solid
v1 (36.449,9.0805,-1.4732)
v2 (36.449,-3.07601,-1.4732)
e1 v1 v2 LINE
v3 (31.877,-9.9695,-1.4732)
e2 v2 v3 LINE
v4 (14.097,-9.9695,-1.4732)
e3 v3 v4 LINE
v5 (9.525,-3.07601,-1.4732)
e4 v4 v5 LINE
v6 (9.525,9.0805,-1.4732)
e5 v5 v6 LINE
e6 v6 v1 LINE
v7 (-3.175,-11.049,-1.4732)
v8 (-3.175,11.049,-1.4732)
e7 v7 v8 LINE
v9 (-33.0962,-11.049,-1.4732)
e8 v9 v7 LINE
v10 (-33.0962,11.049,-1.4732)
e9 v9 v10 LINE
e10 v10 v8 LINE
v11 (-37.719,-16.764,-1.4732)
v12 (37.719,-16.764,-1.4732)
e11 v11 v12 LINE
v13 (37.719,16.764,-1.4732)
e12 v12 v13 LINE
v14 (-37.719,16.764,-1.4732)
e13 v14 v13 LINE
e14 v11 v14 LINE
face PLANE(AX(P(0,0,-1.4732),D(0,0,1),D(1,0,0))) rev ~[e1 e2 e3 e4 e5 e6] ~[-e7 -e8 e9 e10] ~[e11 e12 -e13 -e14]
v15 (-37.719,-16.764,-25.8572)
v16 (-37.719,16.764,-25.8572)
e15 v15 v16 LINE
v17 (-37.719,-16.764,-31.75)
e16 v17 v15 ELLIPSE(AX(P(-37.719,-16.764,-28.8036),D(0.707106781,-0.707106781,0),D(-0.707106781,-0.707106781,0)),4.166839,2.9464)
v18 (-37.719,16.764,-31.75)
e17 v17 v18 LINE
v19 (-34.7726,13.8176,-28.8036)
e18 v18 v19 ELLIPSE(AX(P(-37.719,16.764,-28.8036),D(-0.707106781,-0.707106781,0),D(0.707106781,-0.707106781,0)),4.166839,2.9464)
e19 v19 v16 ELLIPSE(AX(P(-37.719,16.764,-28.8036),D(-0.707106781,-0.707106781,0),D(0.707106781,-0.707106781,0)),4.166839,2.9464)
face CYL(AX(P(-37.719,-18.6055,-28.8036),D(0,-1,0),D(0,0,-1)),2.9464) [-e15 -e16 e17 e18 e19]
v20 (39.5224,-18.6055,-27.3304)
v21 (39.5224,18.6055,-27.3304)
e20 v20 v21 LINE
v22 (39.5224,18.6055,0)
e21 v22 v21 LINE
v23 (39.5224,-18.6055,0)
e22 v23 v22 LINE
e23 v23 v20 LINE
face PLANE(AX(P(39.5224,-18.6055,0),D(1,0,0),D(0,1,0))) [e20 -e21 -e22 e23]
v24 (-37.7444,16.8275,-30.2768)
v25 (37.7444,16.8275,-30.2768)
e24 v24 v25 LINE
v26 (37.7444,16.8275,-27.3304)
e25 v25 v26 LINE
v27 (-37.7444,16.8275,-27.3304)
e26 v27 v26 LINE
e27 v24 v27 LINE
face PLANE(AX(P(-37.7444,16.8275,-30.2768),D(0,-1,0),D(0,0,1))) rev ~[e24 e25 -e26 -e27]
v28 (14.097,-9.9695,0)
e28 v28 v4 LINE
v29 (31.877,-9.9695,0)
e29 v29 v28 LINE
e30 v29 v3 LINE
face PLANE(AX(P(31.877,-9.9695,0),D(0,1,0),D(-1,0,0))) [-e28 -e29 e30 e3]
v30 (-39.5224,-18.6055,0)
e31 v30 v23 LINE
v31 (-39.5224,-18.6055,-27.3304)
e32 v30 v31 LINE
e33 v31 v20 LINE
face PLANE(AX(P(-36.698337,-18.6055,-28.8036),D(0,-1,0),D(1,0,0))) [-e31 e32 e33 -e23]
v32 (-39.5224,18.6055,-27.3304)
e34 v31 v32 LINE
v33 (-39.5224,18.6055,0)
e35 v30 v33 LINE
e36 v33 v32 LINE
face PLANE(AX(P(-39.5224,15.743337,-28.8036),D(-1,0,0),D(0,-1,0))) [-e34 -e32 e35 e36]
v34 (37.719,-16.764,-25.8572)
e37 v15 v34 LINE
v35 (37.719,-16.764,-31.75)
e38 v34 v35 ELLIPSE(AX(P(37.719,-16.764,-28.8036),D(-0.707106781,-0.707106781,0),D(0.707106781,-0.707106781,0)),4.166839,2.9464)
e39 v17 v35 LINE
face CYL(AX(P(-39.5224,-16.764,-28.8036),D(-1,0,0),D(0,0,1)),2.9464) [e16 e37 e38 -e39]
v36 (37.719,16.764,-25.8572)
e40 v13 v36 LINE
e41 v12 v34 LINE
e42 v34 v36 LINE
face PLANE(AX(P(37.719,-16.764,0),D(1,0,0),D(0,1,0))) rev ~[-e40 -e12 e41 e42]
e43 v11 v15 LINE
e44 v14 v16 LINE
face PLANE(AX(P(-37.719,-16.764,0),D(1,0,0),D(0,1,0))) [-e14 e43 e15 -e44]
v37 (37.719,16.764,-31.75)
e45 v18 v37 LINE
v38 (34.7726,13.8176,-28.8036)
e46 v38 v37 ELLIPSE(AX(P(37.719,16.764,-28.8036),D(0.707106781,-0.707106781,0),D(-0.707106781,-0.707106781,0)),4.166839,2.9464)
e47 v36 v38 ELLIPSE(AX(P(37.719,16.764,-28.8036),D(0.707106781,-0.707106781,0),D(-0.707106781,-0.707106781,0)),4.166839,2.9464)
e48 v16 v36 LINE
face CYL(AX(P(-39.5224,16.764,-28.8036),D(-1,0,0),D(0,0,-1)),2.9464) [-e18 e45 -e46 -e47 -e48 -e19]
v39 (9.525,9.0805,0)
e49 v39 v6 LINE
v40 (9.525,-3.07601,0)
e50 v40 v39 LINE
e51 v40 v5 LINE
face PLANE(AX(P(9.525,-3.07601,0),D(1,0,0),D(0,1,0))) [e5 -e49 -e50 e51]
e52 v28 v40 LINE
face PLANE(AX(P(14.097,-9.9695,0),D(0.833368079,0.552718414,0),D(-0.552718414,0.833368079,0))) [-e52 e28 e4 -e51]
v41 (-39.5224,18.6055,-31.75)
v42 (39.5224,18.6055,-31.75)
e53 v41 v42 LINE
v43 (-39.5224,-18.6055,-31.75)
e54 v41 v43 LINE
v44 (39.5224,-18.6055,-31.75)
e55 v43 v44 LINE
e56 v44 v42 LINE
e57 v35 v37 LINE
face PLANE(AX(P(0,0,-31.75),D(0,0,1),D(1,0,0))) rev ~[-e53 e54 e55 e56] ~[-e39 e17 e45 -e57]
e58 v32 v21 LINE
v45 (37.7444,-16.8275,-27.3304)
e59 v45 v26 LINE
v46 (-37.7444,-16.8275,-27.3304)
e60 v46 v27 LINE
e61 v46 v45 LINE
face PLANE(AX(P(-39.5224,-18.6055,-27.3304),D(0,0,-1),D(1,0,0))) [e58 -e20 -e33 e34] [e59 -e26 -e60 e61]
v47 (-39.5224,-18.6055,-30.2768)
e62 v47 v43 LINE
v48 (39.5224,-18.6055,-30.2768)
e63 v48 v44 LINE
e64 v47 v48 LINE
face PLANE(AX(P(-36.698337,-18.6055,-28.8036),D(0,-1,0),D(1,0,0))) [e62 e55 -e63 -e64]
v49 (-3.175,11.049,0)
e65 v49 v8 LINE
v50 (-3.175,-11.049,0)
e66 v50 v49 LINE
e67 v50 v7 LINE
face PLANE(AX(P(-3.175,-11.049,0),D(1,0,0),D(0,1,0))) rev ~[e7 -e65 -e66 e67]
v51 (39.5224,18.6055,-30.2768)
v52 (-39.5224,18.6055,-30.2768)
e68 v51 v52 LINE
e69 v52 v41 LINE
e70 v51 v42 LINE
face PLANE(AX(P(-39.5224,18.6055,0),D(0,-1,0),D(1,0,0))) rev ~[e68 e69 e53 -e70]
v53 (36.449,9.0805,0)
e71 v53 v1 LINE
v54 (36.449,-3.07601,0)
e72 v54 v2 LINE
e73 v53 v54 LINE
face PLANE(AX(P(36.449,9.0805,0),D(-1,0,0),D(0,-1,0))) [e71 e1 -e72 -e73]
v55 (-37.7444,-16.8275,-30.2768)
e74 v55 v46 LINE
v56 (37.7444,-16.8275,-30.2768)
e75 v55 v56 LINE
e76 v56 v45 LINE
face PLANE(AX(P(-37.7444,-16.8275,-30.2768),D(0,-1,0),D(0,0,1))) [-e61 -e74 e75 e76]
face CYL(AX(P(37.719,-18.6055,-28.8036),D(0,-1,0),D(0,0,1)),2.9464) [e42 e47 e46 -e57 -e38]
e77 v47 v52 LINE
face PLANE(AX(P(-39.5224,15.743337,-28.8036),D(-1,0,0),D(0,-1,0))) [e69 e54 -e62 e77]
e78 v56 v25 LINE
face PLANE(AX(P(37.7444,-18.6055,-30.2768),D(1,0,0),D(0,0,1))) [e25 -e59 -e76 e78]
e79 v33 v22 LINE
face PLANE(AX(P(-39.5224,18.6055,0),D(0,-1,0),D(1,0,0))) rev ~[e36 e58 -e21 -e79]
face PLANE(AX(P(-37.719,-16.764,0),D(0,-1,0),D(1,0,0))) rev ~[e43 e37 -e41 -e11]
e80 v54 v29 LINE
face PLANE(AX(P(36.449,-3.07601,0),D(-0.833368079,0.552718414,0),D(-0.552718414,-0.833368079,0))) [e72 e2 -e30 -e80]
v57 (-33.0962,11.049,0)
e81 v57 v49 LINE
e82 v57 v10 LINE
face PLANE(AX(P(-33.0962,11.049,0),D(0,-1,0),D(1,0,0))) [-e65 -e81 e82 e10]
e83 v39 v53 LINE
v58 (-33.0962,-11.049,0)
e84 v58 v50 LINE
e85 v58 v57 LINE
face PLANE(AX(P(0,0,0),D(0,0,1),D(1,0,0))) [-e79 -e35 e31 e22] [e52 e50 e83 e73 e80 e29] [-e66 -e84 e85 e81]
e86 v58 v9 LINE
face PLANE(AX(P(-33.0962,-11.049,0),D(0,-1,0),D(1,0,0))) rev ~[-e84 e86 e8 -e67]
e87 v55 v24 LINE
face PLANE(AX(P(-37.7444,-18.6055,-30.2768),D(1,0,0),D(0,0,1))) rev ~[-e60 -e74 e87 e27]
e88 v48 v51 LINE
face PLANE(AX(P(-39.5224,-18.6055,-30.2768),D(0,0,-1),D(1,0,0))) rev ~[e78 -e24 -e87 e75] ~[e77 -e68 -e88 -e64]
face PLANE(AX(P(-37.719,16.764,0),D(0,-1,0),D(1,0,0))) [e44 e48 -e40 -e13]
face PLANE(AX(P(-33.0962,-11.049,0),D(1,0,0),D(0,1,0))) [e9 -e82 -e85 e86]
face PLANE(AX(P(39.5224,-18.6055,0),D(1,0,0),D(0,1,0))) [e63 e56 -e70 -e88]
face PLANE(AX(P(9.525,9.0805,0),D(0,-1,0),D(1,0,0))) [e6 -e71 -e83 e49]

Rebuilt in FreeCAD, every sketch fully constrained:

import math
import FreeCAD as App
import Part
import Sketcher
Q = App.Units.Quantity

doc = App.newDocument("Part")
params = doc.addObject("Spreadsheet::Sheet", "Params")
for row, (alias, value) in enumerate([
    ("sketch1_width", "2.97 in"),
    ("sketch1_height", "1.32 in"),
    ("sketch1_width2", "3.112 in"),
    ("sketch1_height2", "1.465 in"),
    ("pad1_length", "1.25 in"),
    ("sketch2_width", "0.7 in"),
    ("sketch2_width2", "2.97 in"),
    ("sketch2_width3", "1.06 in"),
    ("sketch2_height", "1.32 in"),
    ("sketch2_height2", "0.87 in"),
    ("pad2_length", "0.058 in"),
    ("sketch3_radius", "0.116 in"),
    ("sketch4_radius", "0.116 in"),
    ("sketch5_width", "0.07 in"),
    ("sketch5_height", "0.116 in"),
    ("sketch6_width", "0.07 in"),
    ("sketch6_height", "0.116 in"),
], start=1):
    params.set(f"A{row}", alias)
    params.set(f"B{row}", "=" + value)
    params.setAlias(f"B{row}", alias)

body = doc.addObject("PartDesign::Body", "Body")

sketch1 = body.newObject("Sketcher::SketchObject", "Sketch")
sketch1.AttachmentSupport = (doc.getObject("XY_Plane"), [""])
sketch1.MapMode = "FlatFace"
sketch1.addGeometry([
    Part.LineSegment(App.Vector(-39.5224, 18.6055, 0), App.Vector(-39.5224, -18.6055, 0)),
    Part.LineSegment(App.Vector(-39.5224, -18.6055, 0), App.Vector(39.5224, -18.6055, 0)),
    Part.LineSegment(App.Vector(39.5224, -18.6055, 0), App.Vector(39.5224, 18.6055, 0)),
    Part.LineSegment(App.Vector(39.5224, 18.6055, 0), App.Vector(-39.5224, 18.6055, 0)),
    Part.LineSegment(App.Vector(37.719, -16.764, 0), App.Vector(-37.719, -16.764, 0)),
    Part.LineSegment(App.Vector(-37.719, -16.764, 0), App.Vector(-37.719, 16.764, 0)),
    Part.LineSegment(App.Vector(-37.719, 16.764, 0), App.Vector(37.719, 16.764, 0)),
    Part.LineSegment(App.Vector(37.719, 16.764, 0), App.Vector(37.719, -16.764, 0)),
], False)
sketch1.addConstraint([
    Sketcher.Constraint("Coincident", 0, 2, 1, 1),
    Sketcher.Constraint("Coincident", 1, 2, 2, 1),
    Sketcher.Constraint("Coincident", 2, 2, 3, 1),
    Sketcher.Constraint("Coincident", 3, 2, 0, 1),
    Sketcher.Constraint("Coincident", 4, 2, 5, 1),
    Sketcher.Constraint("Coincident", 5, 2, 6, 1),
    Sketcher.Constraint("Coincident", 6, 2, 7, 1),
    Sketcher.Constraint("Coincident", 7, 2, 4, 1),
    Sketcher.Constraint("Vertical", 0),
    Sketcher.Constraint("Horizontal", 1),
    Sketcher.Constraint("Vertical", 2),
    Sketcher.Constraint("Horizontal", 3),
    Sketcher.Constraint("Horizontal", 4),
    Sketcher.Constraint("Vertical", 5),
    Sketcher.Constraint("Horizontal", 6),
    Sketcher.Constraint("Vertical", 7),
    Sketcher.Constraint("Symmetric", 0, 2, 2, 2, -1, 1),
    Sketcher.Constraint("Symmetric", 4, 2, 6, 2, -1, 1),
    Sketcher.Constraint("DistanceX", 4, 2, 4, 1, Q("2.97 in")),
    Sketcher.Constraint("DistanceY", 5, 1, 5, 2, Q("1.32 in")),
    Sketcher.Constraint("DistanceX", 1, 1, 1, 2, Q("3.112 in")),
    Sketcher.Constraint("DistanceY", 0, 2, 0, 1, Q("1.465 in")),
])
sketch1.setExpression("Constraints[18]", "Params.sketch1_width")
sketch1.setExpression("Constraints[19]", "Params.sketch1_height")
sketch1.setExpression("Constraints[20]", "Params.sketch1_width2")
sketch1.setExpression("Constraints[21]", "Params.sketch1_height2")
pad1 = body.newObject("PartDesign::Pad", "Pad")
pad1.Profile = sketch1
pad1.setExpression("Length", "Params.pad1_length")
pad1.Reversed = True

sketch2 = body.newObject("Sketcher::SketchObject", "Sketch001")
sketch2.AttachmentSupport = (doc.getObject("XY_Plane"), [""])
sketch2.MapMode = "FlatFace"
sketch2.addGeometry([
    Part.LineSegment(App.Vector(-37.719, 16.764, 0), App.Vector(-37.719, -16.764, 0)),
    Part.LineSegment(App.Vector(-37.719, -16.764, 0), App.Vector(37.719, -16.764, 0)),
    Part.LineSegment(App.Vector(37.719, -16.764, 0), App.Vector(37.719, 16.764, 0)),
    Part.LineSegment(App.Vector(37.719, 16.764, 0), App.Vector(-37.719, 16.764, 0)),
    Part.LineSegment(App.Vector(-3.175, -11.049, 0), App.Vector(-33.0962, -11.049, 0)),
    Part.LineSegment(App.Vector(-33.0962, -11.049, 0), App.Vector(-33.0962, 11.049, 0)),
    Part.LineSegment(App.Vector(-33.0962, 11.049, 0), App.Vector(-3.175, 11.049, 0)),
    Part.LineSegment(App.Vector(-3.175, 11.049, 0), App.Vector(-3.175, -11.049, 0)),
    Part.LineSegment(App.Vector(9.525, -3.07601, 0), App.Vector(9.525, 9.0805, 0)),
    Part.LineSegment(App.Vector(9.525, 9.0805, 0), App.Vector(36.449, 9.0805, 0)),
    Part.LineSegment(App.Vector(36.449, 9.0805, 0), App.Vector(36.449, -3.07601, 0)),
    Part.LineSegment(App.Vector(36.449, -3.07601, 0), App.Vector(31.877, -9.9695, 0)),
    Part.LineSegment(App.Vector(31.877, -9.9695, 0), App.Vector(14.097, -9.9695, 0)),
    Part.LineSegment(App.Vector(14.097, -9.9695, 0), App.Vector(9.525, -3.07601, 0)),
], False)
sketch2.addConstraint([
    Sketcher.Constraint("Coincident", 0, 2, 1, 1),
    Sketcher.Constraint("Coincident", 1, 2, 2, 1),
    Sketcher.Constraint("Coincident", 2, 2, 3, 1),
    Sketcher.Constraint("Coincident", 3, 2, 0, 1),
    Sketcher.Constraint("Coincident", 4, 2, 5, 1),
    Sketcher.Constraint("Coincident", 5, 2, 6, 1),
    Sketcher.Constraint("Coincident", 6, 2, 7, 1),
    Sketcher.Constraint("Coincident", 7, 2, 4, 1),
    Sketcher.Constraint("Coincident", 8, 2, 9, 1),
    Sketcher.Constraint("Coincident", 9, 2, 10, 1),
    Sketcher.Constraint("Coincident", 10, 2, 11, 1),
    Sketcher.Constraint("Coincident", 11, 2, 12, 1),
    Sketcher.Constraint("Coincident", 12, 2, 13, 1),
    Sketcher.Constraint("Coincident", 13, 2, 8, 1),
    Sketcher.Constraint("Vertical", 0),
    Sketcher.Constraint("Horizontal", 1),
    Sketcher.Constraint("Vertical", 2),
    Sketcher.Constraint("Horizontal", 3),
    Sketcher.Constraint("Horizontal", 4),
    Sketcher.Constraint("Vertical", 5),
    Sketcher.Constraint("Horizontal", 6),
    Sketcher.Constraint("Vertical", 7),
    Sketcher.Constraint("Vertical", 8),
    Sketcher.Constraint("Horizontal", 9),
    Sketcher.Constraint("Vertical", 10),
    Sketcher.Constraint("Horizontal", 12),
    Sketcher.Constraint("Symmetric", 0, 2, 2, 2, -1, 1),
    Sketcher.Constraint("Horizontal", 10, 2, 13, 2),
    Sketcher.Constraint("Equal", 11, 13),
    Sketcher.Constraint("DistanceX", 12, 2, 12, 1, Q("0.7 in")),
    Sketcher.Constraint("DistanceX", 1, 1, 1, 2, Q("2.97 in")),
    Sketcher.Constraint("DistanceX", 9, 1, 9, 2, Q("1.06 in")),
    Sketcher.Constraint("DistanceY", 0, 2, 0, 1, Q("1.32 in")),
    Sketcher.Constraint("DistanceY", 5, 1, 5, 2, Q("0.87 in")),
    Sketcher.Constraint("DistanceX", 6, 2, 8, 2, Q("0.5 in")),
    Sketcher.Constraint("DistanceX", 4, 2, 4, 1, Q("1.178 in")),
    Sketcher.Constraint("DistanceX", 3, 2, 6, 2, Q("1.36 in")),
    Sketcher.Constraint("DistanceY", 11, 2, 9, 2, Q("0.75 in")),
    Sketcher.Constraint("DistanceY", 4, 2, -1, 1, Q("0.435 in")),
    Sketcher.Constraint("DistanceY", -1, 1, 8, 2, Q("0.3575 in")),
    Sketcher.Constraint("DistanceY", 8, 1, 8, 2, Q("12.15651 mm")),
])
sketch2.setExpression("Constraints[29]", "Params.sketch2_width")
sketch2.setExpression("Constraints[30]", "Params.sketch2_width2")
sketch2.setExpression("Constraints[31]", "Params.sketch2_width3")
sketch2.setExpression("Constraints[32]", "Params.sketch2_height")
sketch2.setExpression("Constraints[33]", "Params.sketch2_height2")
pad2 = body.newObject("PartDesign::Pad", "Pad001")
pad2.Profile = sketch2
pad2.setExpression("Length", "Params.pad2_length")
pad2.Reversed = True

sketch3 = body.newObject("Sketcher::SketchObject", "Sketch002")
sketch3.AttachmentSupport = (doc.getObject("XZ_Plane"), [""])
sketch3.MapMode = "FlatFace"
sketch3.AttachmentOffset = App.Placement(App.Vector(0, 0, 0.7325 * 25.4), App.Rotation())
sketch3.addGeometry([
    Part.LineSegment(App.Vector(-37.719, -25.8572, 0), App.Vector(-37.719, -31.75, 0)),
    Part.ArcOfCircle(Part.Circle(App.Vector(-37.719, -28.8036, 0), App.Vector(0, 0, 1), 2.9464), math.radians(-90), math.radians(90)),
    Part.LineSegment(App.Vector(37.719, -31.75, 0), App.Vector(37.719, -25.8572, 0)),
    Part.ArcOfCircle(Part.Circle(App.Vector(37.719, -28.8036, 0), App.Vector(0, 0, 1), 2.9464), math.radians(90), math.radians(270)),
], False)
sketch3.addConstraint([
    Sketcher.Constraint("Coincident", 0, 1, 1, 2),
    Sketcher.Constraint("Coincident", 1, 1, 0, 2),
    Sketcher.Constraint("Coincident", 2, 1, 3, 2),
    Sketcher.Constraint("Coincident", 3, 1, 2, 2),
    Sketcher.Constraint("Vertical", 0),
    Sketcher.Constraint("Vertical", 2),
    Sketcher.Constraint("Equal", 1, 3),
    Sketcher.Constraint("Symmetric", 1, 3, 3, 3, -2),
    Sketcher.Constraint("Vertical", 1, 3, 0, 1),
    Sketcher.Constraint("Vertical", 3, 3, 2, 1),
    Sketcher.Constraint("Radius", 1, Q("0.116 in")),
    Sketcher.Constraint("DistanceY", 1, 1, -1, 1, Q("1.25 in")),
    Sketcher.Constraint("DistanceX", 1, 3, 3, 3, Q("2.97 in")),
])
sketch3.setExpression("Constraints[10]", "Params.sketch3_radius")
pad3 = body.newObject("PartDesign::Pad", "Pad002")
pad3.Profile = sketch3
pad3.Type = "UpToLast"
pad3.Reversed = True

sketch4 = body.newObject("Sketcher::SketchObject", "Sketch003")
sketch4.AttachmentSupport = (doc.getObject("YZ_Plane"), [""])
sketch4.MapMode = "FlatFace"
sketch4.AttachmentOffset = App.Placement(App.Vector(0, 0, -1.556 * 25.4), App.Rotation())
sketch4.addGeometry([
    Part.LineSegment(App.Vector(16.764, -25.8572, 0), App.Vector(16.764, -31.75, 0)),
    Part.ArcOfCircle(Part.Circle(App.Vector(16.764, -28.8036, 0), App.Vector(0, 0, 1), 2.9464), math.radians(90), math.radians(270)),
    Part.LineSegment(App.Vector(-16.764, -31.75, 0), App.Vector(-16.764, -25.8572, 0)),
    Part.ArcOfCircle(Part.Circle(App.Vector(-16.764, -28.8036, 0), App.Vector(0, 0, 1), 2.9464), math.radians(-90), math.radians(90)),
], False)
sketch4.addConstraint([
    Sketcher.Constraint("Coincident", 0, 1, 1, 1),
    Sketcher.Constraint("Coincident", 1, 2, 0, 2),
    Sketcher.Constraint("Coincident", 2, 1, 3, 1),
    Sketcher.Constraint("Coincident", 3, 2, 2, 2),
    Sketcher.Constraint("Vertical", 0),
    Sketcher.Constraint("Vertical", 2),
    Sketcher.Constraint("Equal", 1, 3),
    Sketcher.Constraint("Symmetric", 1, 3, 3, 3, -2),
    Sketcher.Constraint("Vertical", 1, 3, 0, 1),
    Sketcher.Constraint("Vertical", 3, 3, 2, 1),
    Sketcher.Constraint("Radius", 1, Q("0.116 in")),
    Sketcher.Constraint("DistanceX", -1, 1, 1, 3, Q("0.66 in")),
    Sketcher.Constraint("DistanceY", 1, 2, -1, 1, Q("1.25 in")),
])
sketch4.setExpression("Constraints[10]", "Params.sketch4_radius")
pad4 = body.newObject("PartDesign::Pad", "Pad003")
pad4.Profile = sketch4
pad4.Type = "UpToLast"

sketch5 = body.newObject("Sketcher::SketchObject", "Sketch004")
sketch5.AttachmentSupport = (doc.getObject("XZ_Plane"), [""])
sketch5.MapMode = "FlatFace"
sketch5.AttachmentOffset = App.Placement(App.Vector(0, 0, 0.7325 * 25.4), App.Rotation())
sketch5.addGeometry([
    Part.LineSegment(App.Vector(-39.5224, -27.3304, 0), App.Vector(-39.5224, -30.2768, 0)),
    Part.LineSegment(App.Vector(-39.5224, -30.2768, 0), App.Vector(-37.7444, -30.2768, 0)),
    Part.LineSegment(App.Vector(-37.7444, -30.2768, 0), App.Vector(-37.7444, -27.3304, 0)),
    Part.LineSegment(App.Vector(-37.7444, -27.3304, 0), App.Vector(-39.5224, -27.3304, 0)),
    Part.LineSegment(App.Vector(37.7444, -27.3304, 0), App.Vector(37.7444, -30.2768, 0)),
    Part.LineSegment(App.Vector(37.7444, -30.2768, 0), App.Vector(39.5224, -30.2768, 0)),
    Part.LineSegment(App.Vector(39.5224, -30.2768, 0), App.Vector(39.5224, -27.3304, 0)),
    Part.LineSegment(App.Vector(39.5224, -27.3304, 0), App.Vector(37.7444, -27.3304, 0)),
], False)
sketch5.addConstraint([
    Sketcher.Constraint("Coincident", 0, 2, 1, 1),
    Sketcher.Constraint("Coincident", 1, 2, 2, 1),
    Sketcher.Constraint("Coincident", 2, 2, 3, 1),
    Sketcher.Constraint("Coincident", 3, 2, 0, 1),
    Sketcher.Constraint("Coincident", 4, 2, 5, 1),
    Sketcher.Constraint("Coincident", 5, 2, 6, 1),
    Sketcher.Constraint("Coincident", 6, 2, 7, 1),
    Sketcher.Constraint("Coincident", 7, 2, 4, 1),
    Sketcher.Constraint("Vertical", 0),
    Sketcher.Constraint("Horizontal", 1),
    Sketcher.Constraint("Vertical", 2),
    Sketcher.Constraint("Horizontal", 3),
    Sketcher.Constraint("Vertical", 4),
    Sketcher.Constraint("Horizontal", 5),
    Sketcher.Constraint("Vertical", 6),
    Sketcher.Constraint("Horizontal", 7),
    Sketcher.Constraint("Symmetric", 1, 2, 4, 2, -2),
    Sketcher.Constraint("Symmetric", 3, 2, 6, 2, -2),
    Sketcher.Constraint("DistanceX", 1, 1, 1, 2, Q("0.07 in")),
    Sketcher.Constraint("DistanceY", 0, 2, 0, 1, Q("0.116 in")),
    Sketcher.Constraint("DistanceX", 0, 2, -1, 1, Q("1.556 in")),
    Sketcher.Constraint("DistanceY", 0, 2, -1, 1, Q("1.192 in")),
])
sketch5.setExpression("Constraints[18]", "Params.sketch5_width")
sketch5.setExpression("Constraints[19]", "Params.sketch5_height")
pocket1 = body.newObject("PartDesign::Pocket", "Pocket")
pocket1.Profile = sketch5
pocket1.Type = "ThroughAll"

sketch6 = body.newObject("Sketcher::SketchObject", "Sketch005")
sketch6.AttachmentSupport = (doc.getObject("YZ_Plane"), [""])
sketch6.MapMode = "FlatFace"
sketch6.AttachmentOffset = App.Placement(App.Vector(0, 0, -1.486 * 25.4), App.Rotation())
sketch6.addGeometry([
    Part.LineSegment(App.Vector(18.6055, -27.3304, 0), App.Vector(18.6055, -30.2768, 0)),
    Part.LineSegment(App.Vector(18.6055, -30.2768, 0), App.Vector(16.8275, -30.2768, 0)),
    Part.LineSegment(App.Vector(16.8275, -30.2768, 0), App.Vector(16.8275, -27.3304, 0)),
    Part.LineSegment(App.Vector(16.8275, -27.3304, 0), App.Vector(18.6055, -27.3304, 0)),
    Part.LineSegment(App.Vector(-16.8275, -27.3304, 0), App.Vector(-16.8275, -30.2768, 0)),
    Part.LineSegment(App.Vector(-16.8275, -30.2768, 0), App.Vector(-18.6055, -30.2768, 0)),
    Part.LineSegment(App.Vector(-18.6055, -30.2768, 0), App.Vector(-18.6055, -27.3304, 0)),
    Part.LineSegment(App.Vector(-18.6055, -27.3304, 0), App.Vector(-16.8275, -27.3304, 0)),
], False)
sketch6.addConstraint([
    Sketcher.Constraint("Coincident", 0, 2, 1, 1),
    Sketcher.Constraint("Coincident", 1, 2, 2, 1),
    Sketcher.Constraint("Coincident", 2, 2, 3, 1),
    Sketcher.Constraint("Coincident", 3, 2, 0, 1),
    Sketcher.Constraint("Coincident", 4, 2, 5, 1),
    Sketcher.Constraint("Coincident", 5, 2, 6, 1),
    Sketcher.Constraint("Coincident", 6, 2, 7, 1),
    Sketcher.Constraint("Coincident", 7, 2, 4, 1),
    Sketcher.Constraint("Vertical", 0),
    Sketcher.Constraint("Horizontal", 1),
    Sketcher.Constraint("Vertical", 2),
    Sketcher.Constraint("Horizontal", 3),
    Sketcher.Constraint("Vertical", 4),
    Sketcher.Constraint("Horizontal", 5),
    Sketcher.Constraint("Vertical", 6),
    Sketcher.Constraint("Horizontal", 7),
    Sketcher.Constraint("Symmetric", 1, 2, 4, 2, -2),
    Sketcher.Constraint("Symmetric", 3, 2, 6, 2, -2),
    Sketcher.Constraint("DistanceX", 1, 2, 1, 1, Q("0.07 in")),
    Sketcher.Constraint("DistanceY", 0, 2, 0, 1, Q("0.116 in")),
    Sketcher.Constraint("DistanceY", 0, 2, -1, 1, Q("1.192 in")),
    Sketcher.Constraint("DistanceX", 4, 2, 1, 2, Q("1.325 in")),
])
sketch6.setExpression("Constraints[18]", "Params.sketch6_width")
sketch6.setExpression("Constraints[19]", "Params.sketch6_height")
pocket2 = body.newObject("PartDesign::Pocket", "Pocket001")
pocket2.Profile = sketch6
pocket2.Type = "ThroughAll"
pocket2.Reversed = True

doc.recompute()
